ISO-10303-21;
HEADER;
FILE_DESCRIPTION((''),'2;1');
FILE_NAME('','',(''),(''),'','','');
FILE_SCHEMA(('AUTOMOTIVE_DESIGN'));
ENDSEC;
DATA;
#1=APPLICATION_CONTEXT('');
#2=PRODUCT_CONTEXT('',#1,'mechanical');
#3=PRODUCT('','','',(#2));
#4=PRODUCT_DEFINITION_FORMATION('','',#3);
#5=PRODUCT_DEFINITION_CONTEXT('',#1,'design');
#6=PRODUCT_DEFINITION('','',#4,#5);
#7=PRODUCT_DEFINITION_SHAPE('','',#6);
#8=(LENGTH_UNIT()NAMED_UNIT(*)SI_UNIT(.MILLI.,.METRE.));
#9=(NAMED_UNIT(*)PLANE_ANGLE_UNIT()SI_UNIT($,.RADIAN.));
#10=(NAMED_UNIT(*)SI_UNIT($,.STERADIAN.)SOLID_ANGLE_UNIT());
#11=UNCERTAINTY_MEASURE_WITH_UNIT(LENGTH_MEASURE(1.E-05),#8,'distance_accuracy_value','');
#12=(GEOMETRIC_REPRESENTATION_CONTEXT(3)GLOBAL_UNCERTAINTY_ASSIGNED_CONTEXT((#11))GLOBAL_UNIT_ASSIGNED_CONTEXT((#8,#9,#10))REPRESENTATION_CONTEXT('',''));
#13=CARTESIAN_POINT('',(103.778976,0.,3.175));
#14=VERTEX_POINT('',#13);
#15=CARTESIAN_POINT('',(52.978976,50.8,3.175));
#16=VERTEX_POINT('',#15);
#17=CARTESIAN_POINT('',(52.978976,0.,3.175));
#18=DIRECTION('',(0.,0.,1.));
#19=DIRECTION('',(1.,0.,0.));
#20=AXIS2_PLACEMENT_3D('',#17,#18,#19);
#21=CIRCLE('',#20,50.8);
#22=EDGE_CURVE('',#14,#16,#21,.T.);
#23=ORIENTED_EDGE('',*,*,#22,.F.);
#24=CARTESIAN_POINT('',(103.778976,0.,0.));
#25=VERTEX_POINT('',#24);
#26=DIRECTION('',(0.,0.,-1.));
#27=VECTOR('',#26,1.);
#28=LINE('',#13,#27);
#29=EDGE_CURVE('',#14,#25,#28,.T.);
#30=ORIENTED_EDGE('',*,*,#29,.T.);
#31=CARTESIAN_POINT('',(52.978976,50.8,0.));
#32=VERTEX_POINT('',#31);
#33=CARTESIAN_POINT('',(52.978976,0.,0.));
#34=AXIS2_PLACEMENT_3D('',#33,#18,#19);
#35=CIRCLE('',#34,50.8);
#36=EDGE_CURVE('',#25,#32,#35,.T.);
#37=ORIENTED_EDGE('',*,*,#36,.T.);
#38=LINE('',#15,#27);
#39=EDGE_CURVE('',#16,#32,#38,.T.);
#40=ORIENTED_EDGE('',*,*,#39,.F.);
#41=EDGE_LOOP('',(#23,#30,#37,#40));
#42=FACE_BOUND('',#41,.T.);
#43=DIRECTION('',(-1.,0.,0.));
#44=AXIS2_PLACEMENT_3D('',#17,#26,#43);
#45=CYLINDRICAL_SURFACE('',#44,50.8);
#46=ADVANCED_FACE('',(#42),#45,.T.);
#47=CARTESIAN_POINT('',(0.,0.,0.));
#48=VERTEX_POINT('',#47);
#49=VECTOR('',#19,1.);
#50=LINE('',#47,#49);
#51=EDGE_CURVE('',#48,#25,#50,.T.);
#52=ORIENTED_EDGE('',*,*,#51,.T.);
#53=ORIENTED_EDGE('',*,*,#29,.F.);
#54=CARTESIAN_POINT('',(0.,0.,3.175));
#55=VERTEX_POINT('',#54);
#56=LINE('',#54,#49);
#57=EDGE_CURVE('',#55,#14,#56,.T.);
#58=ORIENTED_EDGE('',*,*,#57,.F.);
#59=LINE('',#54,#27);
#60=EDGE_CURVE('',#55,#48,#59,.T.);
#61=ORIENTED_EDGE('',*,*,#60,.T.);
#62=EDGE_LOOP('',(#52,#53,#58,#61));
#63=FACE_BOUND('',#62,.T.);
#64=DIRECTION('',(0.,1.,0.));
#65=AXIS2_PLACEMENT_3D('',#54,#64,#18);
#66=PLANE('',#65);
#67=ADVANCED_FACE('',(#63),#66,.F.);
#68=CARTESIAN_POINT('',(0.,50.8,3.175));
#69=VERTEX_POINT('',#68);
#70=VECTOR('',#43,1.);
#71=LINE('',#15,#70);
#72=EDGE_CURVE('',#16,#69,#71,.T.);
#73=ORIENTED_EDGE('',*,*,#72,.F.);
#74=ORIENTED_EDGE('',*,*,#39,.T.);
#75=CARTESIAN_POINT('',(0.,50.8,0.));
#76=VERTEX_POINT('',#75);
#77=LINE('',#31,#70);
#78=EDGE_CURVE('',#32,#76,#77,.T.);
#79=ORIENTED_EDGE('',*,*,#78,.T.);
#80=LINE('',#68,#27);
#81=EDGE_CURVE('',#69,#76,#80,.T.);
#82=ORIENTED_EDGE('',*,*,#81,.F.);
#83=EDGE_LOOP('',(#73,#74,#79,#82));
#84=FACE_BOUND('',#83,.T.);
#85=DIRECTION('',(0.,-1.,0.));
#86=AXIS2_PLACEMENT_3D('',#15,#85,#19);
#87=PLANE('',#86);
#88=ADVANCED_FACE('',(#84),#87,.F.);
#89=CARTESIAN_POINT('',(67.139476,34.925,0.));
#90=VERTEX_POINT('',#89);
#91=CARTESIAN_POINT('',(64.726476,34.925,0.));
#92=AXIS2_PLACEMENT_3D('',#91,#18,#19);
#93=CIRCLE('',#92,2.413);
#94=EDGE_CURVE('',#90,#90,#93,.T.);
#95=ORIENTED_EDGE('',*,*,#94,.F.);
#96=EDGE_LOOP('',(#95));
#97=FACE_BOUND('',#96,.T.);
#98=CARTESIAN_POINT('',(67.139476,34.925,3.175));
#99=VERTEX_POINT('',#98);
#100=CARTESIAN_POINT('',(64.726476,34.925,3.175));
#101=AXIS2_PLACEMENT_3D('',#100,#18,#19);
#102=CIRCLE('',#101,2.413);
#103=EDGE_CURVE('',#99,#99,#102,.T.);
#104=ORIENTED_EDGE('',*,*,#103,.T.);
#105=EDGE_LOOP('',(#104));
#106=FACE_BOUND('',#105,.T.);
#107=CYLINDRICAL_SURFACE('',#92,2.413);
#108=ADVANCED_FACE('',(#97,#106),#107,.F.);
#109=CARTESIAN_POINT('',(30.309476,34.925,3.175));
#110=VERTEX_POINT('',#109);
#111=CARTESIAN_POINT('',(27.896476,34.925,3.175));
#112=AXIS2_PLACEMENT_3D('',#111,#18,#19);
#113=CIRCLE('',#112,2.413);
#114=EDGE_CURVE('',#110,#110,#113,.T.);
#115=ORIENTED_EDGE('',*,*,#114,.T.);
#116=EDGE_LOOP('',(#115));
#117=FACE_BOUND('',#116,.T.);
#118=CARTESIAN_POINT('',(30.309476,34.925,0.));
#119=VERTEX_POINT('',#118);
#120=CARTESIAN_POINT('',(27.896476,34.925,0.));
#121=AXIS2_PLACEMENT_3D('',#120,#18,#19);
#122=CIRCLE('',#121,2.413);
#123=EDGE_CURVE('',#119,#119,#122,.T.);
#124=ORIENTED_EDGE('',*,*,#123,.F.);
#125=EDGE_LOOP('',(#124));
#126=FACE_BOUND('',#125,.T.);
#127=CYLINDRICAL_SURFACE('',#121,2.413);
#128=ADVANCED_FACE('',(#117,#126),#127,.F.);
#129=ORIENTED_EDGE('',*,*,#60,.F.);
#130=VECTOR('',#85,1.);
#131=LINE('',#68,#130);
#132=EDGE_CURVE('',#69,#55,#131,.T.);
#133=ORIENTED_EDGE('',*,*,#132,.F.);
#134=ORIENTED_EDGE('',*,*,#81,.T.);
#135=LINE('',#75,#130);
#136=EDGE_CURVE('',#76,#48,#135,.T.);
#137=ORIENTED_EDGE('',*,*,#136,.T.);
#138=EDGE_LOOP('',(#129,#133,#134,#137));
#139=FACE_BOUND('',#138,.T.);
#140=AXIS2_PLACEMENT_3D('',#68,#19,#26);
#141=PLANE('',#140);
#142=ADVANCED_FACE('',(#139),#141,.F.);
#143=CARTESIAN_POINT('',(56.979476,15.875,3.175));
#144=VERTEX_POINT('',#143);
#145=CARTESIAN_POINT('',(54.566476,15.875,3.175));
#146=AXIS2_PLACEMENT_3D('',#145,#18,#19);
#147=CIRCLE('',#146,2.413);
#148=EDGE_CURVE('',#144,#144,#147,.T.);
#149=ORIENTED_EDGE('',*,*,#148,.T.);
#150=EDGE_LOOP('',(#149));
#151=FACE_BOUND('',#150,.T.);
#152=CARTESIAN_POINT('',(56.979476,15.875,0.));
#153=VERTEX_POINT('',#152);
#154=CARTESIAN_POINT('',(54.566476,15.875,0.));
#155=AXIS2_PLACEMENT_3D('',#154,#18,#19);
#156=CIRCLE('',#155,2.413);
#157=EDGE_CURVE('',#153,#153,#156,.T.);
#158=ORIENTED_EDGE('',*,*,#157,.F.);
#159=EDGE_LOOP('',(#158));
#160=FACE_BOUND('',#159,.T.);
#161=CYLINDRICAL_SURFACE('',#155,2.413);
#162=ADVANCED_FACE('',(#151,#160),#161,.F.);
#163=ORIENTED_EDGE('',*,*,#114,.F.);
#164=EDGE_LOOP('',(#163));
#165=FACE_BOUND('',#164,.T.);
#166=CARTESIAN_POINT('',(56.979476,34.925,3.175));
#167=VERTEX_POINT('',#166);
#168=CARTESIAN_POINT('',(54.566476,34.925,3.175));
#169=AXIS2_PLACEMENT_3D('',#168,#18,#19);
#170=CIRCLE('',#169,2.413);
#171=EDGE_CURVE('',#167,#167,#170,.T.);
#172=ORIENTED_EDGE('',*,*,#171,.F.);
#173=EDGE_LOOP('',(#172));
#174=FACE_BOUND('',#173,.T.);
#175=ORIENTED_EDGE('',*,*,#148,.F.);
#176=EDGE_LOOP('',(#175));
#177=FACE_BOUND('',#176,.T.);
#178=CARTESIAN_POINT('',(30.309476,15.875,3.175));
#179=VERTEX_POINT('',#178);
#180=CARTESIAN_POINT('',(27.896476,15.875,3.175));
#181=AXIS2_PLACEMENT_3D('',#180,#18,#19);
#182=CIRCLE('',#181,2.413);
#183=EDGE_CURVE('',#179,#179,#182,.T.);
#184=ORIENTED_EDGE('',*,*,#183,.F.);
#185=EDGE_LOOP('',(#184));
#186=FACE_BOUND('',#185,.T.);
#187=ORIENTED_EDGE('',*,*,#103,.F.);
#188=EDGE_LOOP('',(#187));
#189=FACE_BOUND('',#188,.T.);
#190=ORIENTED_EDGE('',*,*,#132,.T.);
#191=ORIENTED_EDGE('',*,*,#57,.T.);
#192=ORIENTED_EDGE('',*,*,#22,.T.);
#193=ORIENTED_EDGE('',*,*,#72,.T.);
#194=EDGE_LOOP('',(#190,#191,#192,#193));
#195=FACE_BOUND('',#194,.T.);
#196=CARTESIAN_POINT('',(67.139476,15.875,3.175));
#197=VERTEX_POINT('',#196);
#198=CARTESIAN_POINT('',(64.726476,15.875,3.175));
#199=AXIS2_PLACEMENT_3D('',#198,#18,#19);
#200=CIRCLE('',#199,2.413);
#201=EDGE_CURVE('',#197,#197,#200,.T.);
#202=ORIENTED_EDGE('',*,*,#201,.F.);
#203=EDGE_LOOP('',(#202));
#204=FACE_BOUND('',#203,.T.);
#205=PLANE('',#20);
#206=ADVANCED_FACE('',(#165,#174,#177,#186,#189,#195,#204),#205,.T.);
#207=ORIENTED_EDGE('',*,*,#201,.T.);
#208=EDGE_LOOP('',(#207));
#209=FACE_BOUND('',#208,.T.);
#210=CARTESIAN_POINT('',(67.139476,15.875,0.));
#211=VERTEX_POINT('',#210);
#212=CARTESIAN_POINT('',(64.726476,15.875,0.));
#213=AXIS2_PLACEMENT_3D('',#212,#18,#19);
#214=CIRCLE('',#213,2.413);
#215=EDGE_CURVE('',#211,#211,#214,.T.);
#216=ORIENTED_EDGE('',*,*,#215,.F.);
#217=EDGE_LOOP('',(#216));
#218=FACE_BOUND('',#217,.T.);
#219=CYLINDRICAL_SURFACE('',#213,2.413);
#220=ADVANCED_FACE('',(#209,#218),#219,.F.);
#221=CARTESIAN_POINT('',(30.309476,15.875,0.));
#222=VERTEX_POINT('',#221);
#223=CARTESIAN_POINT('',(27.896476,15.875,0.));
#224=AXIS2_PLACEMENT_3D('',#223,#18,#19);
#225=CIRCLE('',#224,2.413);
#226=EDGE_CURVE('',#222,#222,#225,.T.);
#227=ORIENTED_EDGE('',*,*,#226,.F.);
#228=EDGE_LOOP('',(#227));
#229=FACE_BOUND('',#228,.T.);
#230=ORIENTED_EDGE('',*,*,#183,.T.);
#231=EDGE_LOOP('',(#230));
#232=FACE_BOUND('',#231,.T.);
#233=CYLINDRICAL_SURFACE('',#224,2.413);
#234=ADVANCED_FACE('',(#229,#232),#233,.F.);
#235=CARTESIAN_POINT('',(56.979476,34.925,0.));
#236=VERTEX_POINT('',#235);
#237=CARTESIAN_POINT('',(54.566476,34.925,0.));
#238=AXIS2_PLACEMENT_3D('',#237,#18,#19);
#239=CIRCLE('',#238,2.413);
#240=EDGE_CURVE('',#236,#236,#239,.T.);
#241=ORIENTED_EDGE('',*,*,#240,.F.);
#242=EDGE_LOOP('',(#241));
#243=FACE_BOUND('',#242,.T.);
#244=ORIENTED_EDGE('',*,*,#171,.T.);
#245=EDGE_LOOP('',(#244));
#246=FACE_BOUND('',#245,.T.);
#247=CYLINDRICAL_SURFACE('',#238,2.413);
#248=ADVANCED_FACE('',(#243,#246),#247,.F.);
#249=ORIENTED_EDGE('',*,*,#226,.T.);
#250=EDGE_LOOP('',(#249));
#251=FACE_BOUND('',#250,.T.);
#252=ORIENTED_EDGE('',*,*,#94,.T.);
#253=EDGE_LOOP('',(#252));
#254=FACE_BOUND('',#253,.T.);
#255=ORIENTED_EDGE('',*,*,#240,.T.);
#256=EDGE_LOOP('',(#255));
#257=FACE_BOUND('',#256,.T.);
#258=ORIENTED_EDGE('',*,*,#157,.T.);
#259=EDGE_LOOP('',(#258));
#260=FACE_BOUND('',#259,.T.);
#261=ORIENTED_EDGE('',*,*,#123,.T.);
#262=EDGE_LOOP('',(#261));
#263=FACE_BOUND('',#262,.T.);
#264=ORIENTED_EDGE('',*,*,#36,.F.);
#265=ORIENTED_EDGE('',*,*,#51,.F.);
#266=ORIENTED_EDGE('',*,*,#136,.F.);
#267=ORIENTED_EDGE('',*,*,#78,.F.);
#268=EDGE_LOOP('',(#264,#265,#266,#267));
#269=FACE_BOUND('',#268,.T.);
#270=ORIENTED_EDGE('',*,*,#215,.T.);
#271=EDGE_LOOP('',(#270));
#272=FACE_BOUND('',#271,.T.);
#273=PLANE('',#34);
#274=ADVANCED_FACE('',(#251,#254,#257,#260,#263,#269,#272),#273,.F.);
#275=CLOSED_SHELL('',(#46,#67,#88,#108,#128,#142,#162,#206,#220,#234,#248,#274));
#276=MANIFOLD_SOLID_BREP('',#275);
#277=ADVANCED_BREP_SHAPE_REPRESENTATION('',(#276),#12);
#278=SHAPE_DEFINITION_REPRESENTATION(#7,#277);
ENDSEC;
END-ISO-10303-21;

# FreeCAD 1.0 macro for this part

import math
import FreeCAD as App
import Part
import Sketcher
from FreeCAD import Vector
Q = App.Units.Quantity

doc = App.newDocument("Part")
body = doc.addObject("PartDesign::Body", "Body")

sketch1 = body.newObject("Sketcher::SketchObject", "Sketch")
sketch1.AttachmentSupport = (doc.getObject("XY_Plane"), [""])
sketch1.MapMode = "FlatFace"
sketch1.addGeometry(Part.LineSegment(Vector(0, 50.8, 0), Vector(0, 0, 0)), False)
sketch1.addGeometry(Part.LineSegment(Vector(0, 0, 0), Vector(103.778976, 0, 0)), False)
sketch1.addGeometry(Part.ArcOfCircle(Part.Circle(Vector(52.978976, 0, 0), Vector(0, 0, 1), 50.8), math.radians(0), math.radians(90)), False)
sketch1.addGeometry(Part.LineSegment(Vector(52.978976, 50.8, 0), Vector(0, 50.8, 0)), False)
sketch1.addConstraint(Sketcher.Constraint("Coincident", 0, 2, 1, 1))
sketch1.addConstraint(Sketcher.Constraint("Coincident", 1, 2, 2, 1))
sketch1.addConstraint(Sketcher.Constraint("Tangent", 2, 2, 3, 1))
sketch1.addConstraint(Sketcher.Constraint("Coincident", 3, 2, 0, 1))
sketch1.addConstraint(Sketcher.Constraint("Vertical", 0))
sketch1.addConstraint(Sketcher.Constraint("Horizontal", 1))
sketch1.addConstraint(Sketcher.Constraint("Horizontal", 3))
sketch1.addConstraint(Sketcher.Constraint("Coincident", 0, 2, -1, 1))
sketch1.addConstraint(Sketcher.Constraint("PointOnObject", 2, 3, -1))
sketch1.addConstraint(Sketcher.Constraint("Radius", 2, Q("2 in")))
sketch1.addConstraint(Sketcher.Constraint("DistanceX", 1, 1, 1, 2, 103.778976))
pad1 = body.newObject("PartDesign::Pad", "Pad")
pad1.Profile = sketch1
pad1.Length = Q("0.125 in")

sketch2 = body.newObject("Sketcher::SketchObject", "Sketch001")
sketch2.AttachmentSupport = (doc.getObject("XY_Plane"), [""])
sketch2.MapMode = "FlatFace"
sketch2.AttachmentOffset = App.Placement(Vector(0, 0, 0.125 * 25.4), App.Rotation())
sketch2.addGeometry(Part.Circle(Vector(64.726476, 15.875, 0), Vector(0, 0, 1), 2.413), False)
sketch2.addGeometry(Part.Circle(Vector(64.726476, 34.925, 0), Vector(0, 0, 1), 2.413), False)
sketch2.addGeometry(Part.Circle(Vector(27.896476, 15.875, 0), Vector(0, 0, 1), 2.413), False)
sketch2.addGeometry(Part.Circle(Vector(27.896476, 34.925, 0), Vector(0, 0, 1), 2.413), False)
sketch2.addGeometry(Part.Circle(Vector(54.566476, 34.925, 0), Vector(0, 0, 1), 2.413), False)
sketch2.addGeometry(Part.Circle(Vector(54.566476, 15.875, 0), Vector(0, 0, 1), 2.413), False)
sketch2.addConstraint(Sketcher.Constraint("Equal", 0, 1))
sketch2.addConstraint(Sketcher.Constraint("Equal", 1, 2))
sketch2.addConstraint(Sketcher.Constraint("Equal", 2, 3))
sketch2.addConstraint(Sketcher.Constraint("Equal", 3, 4))
sketch2.addConstraint(Sketcher.Constraint("Equal", 4, 5))
sketch2.addConstraint(Sketcher.Constraint("Horizontal", 0, 3, 2, 3))
sketch2.addConstraint(Sketcher.Constraint("Horizontal", 1, 3, 3, 3))
sketch2.addConstraint(Sketcher.Constraint("Horizontal", 3, 3, 4, 3))
sketch2.addConstraint(Sketcher.Constraint("Horizontal", 2, 3, 5, 3))
sketch2.addConstraint(Sketcher.Constraint("Vertical", 0, 3, 1, 3))
sketch2.addConstraint(Sketcher.Constraint("Vertical", 2, 3, 3, 3))
sketch2.addConstraint(Sketcher.Constraint("Vertical", 4, 3, 5, 3))
sketch2.addConstraint(Sketcher.Constraint("Diameter", 0, Q("0.19 in")))
sketch2.addConstraint(Sketcher.Constraint("DistanceX", 4, 3, 1, 3, Q("0.4 in")))
sketch2.addConstraint(Sketcher.Constraint("DistanceY", 0, 3, 1, 3, Q("0.75 in")))
sketch2.addConstraint(Sketcher.Constraint("DistanceX", 2, 3, 0, 3, Q("1.45 in")))
sketch2.addConstraint(Sketcher.Constraint("DistanceY", -1, 1, 0, 3, Q("0.625 in")))
sketch2.addConstraint(Sketcher.Constraint("DistanceX", -1, 1, 0, 3, 64.726476))
pocket1 = body.newObject("PartDesign::Pocket", "Pocket")
pocket1.Profile = sketch2
pocket1.Type = "ThroughAll"
pocket1.Midplane = True

doc.recompute()
